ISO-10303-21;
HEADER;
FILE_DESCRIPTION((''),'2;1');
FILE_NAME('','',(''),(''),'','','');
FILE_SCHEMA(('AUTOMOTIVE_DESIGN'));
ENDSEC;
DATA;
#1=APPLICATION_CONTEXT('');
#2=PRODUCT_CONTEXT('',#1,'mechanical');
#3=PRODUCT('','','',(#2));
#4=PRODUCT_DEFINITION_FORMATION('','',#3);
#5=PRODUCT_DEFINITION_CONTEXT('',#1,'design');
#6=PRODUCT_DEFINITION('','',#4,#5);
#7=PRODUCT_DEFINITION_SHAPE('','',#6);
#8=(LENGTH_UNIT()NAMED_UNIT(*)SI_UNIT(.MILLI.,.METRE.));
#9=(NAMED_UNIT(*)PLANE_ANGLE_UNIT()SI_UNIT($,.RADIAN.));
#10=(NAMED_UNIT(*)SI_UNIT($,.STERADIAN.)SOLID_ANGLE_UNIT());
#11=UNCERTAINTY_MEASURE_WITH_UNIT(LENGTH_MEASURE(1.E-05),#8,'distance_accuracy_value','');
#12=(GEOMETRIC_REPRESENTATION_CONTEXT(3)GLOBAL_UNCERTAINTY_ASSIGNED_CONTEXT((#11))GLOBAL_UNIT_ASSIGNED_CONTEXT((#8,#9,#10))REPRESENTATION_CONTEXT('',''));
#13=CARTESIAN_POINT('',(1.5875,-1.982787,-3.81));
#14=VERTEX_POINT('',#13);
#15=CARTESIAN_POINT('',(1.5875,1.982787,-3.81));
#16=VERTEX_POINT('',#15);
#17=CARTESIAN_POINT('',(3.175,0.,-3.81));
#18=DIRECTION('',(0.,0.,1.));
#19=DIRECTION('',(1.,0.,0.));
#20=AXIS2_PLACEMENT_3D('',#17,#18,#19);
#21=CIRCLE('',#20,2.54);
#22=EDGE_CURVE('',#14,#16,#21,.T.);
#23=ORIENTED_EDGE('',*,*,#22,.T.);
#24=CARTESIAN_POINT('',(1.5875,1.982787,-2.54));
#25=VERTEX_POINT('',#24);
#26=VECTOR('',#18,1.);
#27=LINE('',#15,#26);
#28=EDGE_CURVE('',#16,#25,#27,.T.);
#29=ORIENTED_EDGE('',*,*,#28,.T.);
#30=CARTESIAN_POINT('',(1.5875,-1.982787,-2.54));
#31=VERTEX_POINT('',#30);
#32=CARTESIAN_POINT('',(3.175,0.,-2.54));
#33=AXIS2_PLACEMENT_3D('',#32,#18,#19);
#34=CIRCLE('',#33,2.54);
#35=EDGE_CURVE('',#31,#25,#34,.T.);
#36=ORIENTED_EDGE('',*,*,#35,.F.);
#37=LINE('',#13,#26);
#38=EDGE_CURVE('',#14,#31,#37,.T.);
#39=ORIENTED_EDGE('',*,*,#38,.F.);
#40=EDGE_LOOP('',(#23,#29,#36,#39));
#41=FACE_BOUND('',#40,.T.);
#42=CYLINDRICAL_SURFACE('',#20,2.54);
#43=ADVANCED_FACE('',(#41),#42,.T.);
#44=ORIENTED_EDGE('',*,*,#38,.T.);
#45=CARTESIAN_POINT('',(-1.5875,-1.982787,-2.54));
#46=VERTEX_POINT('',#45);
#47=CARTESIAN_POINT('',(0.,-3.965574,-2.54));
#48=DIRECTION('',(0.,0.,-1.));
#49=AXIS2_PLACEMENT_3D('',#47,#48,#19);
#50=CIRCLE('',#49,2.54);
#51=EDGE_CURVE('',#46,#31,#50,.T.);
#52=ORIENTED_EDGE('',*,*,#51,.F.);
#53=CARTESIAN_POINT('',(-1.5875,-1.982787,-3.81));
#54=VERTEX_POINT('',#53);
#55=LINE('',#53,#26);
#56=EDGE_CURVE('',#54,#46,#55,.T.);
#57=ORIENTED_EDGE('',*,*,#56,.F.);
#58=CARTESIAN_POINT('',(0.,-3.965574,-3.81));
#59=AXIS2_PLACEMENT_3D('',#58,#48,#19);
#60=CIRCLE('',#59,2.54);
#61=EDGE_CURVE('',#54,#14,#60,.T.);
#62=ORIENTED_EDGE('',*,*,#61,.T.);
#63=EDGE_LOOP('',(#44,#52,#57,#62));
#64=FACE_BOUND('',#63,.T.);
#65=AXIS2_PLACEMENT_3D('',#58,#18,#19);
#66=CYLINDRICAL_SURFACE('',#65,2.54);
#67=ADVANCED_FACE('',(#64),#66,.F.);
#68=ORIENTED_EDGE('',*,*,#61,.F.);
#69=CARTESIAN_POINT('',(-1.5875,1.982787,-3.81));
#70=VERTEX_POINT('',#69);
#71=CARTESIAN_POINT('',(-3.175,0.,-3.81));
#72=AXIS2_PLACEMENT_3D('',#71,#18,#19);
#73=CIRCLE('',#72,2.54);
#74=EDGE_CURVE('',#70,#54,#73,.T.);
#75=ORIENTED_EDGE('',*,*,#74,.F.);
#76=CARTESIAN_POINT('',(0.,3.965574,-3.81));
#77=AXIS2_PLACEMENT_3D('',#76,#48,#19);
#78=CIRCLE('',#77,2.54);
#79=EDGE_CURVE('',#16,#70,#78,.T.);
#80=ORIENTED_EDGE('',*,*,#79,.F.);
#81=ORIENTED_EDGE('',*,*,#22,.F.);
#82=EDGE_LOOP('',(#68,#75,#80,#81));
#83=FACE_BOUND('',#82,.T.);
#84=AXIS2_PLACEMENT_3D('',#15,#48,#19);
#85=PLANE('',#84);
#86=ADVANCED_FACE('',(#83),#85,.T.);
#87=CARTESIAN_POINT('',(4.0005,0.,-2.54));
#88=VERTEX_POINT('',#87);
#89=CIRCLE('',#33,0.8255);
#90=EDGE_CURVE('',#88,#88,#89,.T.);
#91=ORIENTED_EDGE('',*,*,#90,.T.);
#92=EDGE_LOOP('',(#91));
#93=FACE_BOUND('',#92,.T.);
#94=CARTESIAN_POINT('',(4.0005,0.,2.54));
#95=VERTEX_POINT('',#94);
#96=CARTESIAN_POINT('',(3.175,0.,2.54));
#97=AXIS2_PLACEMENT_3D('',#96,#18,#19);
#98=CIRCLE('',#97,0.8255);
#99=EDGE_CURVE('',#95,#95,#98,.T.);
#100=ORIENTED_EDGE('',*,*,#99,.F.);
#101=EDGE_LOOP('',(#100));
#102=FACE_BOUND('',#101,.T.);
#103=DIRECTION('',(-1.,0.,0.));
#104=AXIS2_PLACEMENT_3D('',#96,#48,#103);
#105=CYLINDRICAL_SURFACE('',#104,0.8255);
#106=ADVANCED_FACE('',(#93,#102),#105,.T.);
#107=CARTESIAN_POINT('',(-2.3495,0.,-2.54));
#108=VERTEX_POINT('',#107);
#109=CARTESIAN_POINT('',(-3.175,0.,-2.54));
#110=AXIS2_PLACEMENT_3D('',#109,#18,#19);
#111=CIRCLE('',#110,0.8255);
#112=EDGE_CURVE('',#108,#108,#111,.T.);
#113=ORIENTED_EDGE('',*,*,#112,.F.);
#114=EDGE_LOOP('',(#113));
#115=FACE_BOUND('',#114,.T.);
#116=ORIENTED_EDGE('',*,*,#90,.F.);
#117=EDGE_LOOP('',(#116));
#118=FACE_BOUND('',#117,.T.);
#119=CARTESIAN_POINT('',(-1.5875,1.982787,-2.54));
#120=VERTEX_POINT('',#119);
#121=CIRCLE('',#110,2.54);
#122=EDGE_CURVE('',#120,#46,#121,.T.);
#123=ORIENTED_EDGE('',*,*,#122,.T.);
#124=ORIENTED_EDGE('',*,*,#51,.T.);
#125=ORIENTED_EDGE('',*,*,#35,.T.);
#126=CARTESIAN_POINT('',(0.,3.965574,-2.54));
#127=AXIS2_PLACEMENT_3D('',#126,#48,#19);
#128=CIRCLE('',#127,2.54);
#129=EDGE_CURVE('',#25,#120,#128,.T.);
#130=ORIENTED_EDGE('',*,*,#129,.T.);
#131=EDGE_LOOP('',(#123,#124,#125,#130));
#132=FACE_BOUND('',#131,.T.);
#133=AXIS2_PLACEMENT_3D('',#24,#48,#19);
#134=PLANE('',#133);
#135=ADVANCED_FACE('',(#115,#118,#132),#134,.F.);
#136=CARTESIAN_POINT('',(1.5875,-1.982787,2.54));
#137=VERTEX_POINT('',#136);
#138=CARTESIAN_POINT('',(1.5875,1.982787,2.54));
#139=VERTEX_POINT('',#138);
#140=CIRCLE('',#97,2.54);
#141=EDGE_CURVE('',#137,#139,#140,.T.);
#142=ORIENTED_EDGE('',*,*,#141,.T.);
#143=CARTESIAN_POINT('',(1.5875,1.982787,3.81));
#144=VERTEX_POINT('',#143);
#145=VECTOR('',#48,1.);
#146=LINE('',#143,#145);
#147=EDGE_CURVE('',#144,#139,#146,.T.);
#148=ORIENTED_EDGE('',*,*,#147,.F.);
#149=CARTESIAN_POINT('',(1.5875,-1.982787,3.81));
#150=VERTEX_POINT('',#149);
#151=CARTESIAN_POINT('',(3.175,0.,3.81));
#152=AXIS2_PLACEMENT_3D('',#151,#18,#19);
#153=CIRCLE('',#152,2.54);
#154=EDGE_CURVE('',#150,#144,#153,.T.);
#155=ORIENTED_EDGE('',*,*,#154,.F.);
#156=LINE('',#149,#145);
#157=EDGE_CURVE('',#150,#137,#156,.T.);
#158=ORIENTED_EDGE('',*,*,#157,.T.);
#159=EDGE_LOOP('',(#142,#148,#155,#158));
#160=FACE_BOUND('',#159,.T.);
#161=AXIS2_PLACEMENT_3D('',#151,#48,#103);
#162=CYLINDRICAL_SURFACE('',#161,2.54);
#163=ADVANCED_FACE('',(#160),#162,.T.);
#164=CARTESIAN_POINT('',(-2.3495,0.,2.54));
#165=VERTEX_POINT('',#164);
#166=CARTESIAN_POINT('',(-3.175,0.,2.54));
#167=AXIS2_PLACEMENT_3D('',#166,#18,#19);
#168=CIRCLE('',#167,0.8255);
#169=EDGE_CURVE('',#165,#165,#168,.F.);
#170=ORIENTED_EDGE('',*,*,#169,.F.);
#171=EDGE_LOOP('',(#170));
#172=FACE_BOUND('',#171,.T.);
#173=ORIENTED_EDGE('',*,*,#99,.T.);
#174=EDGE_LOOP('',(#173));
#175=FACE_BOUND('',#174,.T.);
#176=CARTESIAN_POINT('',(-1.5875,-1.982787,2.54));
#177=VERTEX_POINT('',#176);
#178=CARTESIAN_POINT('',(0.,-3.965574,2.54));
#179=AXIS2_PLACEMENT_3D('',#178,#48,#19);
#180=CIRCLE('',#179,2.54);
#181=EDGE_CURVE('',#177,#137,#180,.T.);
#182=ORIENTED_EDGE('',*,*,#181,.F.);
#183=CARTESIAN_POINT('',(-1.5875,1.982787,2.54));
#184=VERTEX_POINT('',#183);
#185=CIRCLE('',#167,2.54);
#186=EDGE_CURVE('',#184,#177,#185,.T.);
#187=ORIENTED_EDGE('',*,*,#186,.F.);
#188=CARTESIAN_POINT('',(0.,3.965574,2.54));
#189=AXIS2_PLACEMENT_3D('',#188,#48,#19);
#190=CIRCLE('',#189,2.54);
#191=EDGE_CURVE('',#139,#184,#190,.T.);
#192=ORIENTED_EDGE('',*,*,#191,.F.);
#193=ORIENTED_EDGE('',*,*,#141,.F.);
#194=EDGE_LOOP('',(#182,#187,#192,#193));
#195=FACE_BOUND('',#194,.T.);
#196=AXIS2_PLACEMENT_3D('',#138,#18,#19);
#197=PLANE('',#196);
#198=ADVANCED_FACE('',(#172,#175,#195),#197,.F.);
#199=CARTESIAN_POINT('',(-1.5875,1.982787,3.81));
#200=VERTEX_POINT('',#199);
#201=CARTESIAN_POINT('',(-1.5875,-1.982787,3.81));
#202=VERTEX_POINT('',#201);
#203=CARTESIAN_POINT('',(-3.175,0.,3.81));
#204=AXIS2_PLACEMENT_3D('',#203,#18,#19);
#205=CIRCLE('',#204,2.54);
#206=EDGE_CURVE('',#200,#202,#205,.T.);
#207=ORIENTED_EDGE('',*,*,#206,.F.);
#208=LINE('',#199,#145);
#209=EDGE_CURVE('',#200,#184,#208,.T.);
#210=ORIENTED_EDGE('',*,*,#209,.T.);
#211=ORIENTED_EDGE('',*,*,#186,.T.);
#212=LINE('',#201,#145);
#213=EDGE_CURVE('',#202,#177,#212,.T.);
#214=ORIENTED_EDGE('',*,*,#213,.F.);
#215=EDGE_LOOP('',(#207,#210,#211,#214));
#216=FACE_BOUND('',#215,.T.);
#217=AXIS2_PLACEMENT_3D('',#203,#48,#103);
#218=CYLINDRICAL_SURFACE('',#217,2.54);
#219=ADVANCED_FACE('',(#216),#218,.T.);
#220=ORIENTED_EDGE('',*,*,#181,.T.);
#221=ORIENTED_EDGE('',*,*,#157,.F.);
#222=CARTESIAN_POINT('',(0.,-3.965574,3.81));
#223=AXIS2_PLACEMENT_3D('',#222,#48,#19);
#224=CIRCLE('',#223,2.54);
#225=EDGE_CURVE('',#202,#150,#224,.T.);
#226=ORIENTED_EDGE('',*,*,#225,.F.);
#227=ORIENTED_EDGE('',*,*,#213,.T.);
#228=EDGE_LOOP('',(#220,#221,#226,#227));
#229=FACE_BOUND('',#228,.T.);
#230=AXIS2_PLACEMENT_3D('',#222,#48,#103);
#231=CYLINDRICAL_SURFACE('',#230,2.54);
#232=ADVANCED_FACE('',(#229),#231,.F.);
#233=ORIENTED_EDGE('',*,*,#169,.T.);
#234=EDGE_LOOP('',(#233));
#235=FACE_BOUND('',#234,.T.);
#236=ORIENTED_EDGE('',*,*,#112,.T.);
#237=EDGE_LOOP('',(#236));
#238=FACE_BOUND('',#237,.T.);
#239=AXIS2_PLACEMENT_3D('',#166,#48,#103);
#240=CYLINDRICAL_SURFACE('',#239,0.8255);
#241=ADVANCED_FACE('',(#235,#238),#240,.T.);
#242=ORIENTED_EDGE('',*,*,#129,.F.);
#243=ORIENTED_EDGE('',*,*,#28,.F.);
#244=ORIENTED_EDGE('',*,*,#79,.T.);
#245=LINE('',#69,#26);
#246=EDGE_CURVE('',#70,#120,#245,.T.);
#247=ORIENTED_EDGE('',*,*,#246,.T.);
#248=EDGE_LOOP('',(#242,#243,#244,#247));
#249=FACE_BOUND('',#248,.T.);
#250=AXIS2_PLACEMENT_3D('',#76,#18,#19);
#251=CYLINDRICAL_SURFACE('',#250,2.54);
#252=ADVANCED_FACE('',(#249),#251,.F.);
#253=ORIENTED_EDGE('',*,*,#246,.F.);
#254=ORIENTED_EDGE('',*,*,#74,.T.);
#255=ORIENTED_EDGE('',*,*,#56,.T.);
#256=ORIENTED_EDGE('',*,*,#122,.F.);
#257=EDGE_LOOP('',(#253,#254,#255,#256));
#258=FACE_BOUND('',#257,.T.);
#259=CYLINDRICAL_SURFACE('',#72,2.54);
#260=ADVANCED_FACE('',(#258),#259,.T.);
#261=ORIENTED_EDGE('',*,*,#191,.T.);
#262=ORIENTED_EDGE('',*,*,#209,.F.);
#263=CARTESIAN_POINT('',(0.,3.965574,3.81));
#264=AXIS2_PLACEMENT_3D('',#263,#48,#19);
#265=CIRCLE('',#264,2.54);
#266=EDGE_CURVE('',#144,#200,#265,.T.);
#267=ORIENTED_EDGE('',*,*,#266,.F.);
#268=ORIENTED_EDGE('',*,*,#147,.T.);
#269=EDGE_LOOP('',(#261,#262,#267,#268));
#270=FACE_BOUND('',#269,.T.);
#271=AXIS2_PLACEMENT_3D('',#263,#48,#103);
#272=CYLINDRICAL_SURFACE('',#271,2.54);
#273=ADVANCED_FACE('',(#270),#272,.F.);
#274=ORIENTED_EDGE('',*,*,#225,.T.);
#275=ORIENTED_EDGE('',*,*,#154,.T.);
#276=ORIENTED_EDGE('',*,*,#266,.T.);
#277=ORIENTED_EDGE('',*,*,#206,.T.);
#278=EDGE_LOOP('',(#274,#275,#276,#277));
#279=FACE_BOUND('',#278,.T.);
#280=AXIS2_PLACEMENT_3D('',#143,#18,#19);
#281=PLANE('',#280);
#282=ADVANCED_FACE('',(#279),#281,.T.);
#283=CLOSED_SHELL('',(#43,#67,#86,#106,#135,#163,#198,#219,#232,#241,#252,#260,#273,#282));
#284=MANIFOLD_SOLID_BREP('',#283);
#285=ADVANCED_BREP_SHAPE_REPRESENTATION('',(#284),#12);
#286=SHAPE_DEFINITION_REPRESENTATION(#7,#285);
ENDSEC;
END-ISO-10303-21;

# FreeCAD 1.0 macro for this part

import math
import FreeCAD as App
import Part
import Sketcher
Q = App.Units.Quantity

doc = App.newDocument("Part")
params = doc.addObject("Spreadsheet::Sheet", "Params")
for row, (alias, value) in enumerate([
    ("sketch1_diameter", "0.065 in"),
    ("pad1_length", "0.2 in"),
    ("sketch2_diameter", "0.065 in"),
    ("pad2_length", "0.2 in"),
    ("sketch3_radius", "0.1 in"),
    ("pad3_length", "0.05 in"),
], start=1):
    params.set(f"A{row}", alias)
    params.set(f"B{row}", "=" + value)
    params.setAlias(f"B{row}", alias)

body = doc.addObject("PartDesign::Body", "Body")

# Sketch on XY plane
sketch1 = doc.addObject("Sketcher::SketchObject", "Sketch")
body.addObject(sketch1)
sketch1.AttachmentSupport = (doc.XY_Plane, [""])
sketch1.MapMode = "FlatFace"
sketch1.addGeometry(Part.Circle(App.Vector(3.2, 0, 0), App.Vector(0, 0, 1), 0.8), False)
sketch1.addConstraint([
    Sketcher.Constraint("PointOnObject", 0, 3, -1),
    Sketcher.Constraint("Diameter", 0, Q("0.065 in")),
    Sketcher.Constraint("DistanceX", -1, 1, 0, 3, Q("0.125 in")),
])
sketch1.setExpression("Constraints[1]", "Params.sketch1_diameter")
pad1 = doc.addObject("PartDesign::Pad", "Pad")
body.addObject(pad1)
pad1.Profile = sketch1
pad1.setExpression("Length", "Params.pad1_length")
pad1.Midplane = True
body2 = doc.addObject("PartDesign::Body", "Body001")

# Sketch on XY plane
sketch2 = doc.addObject("Sketcher::SketchObject", "Sketch001")
body2.addObject(sketch2)
sketch2.AttachmentSupport = (doc.getObject("XY_Plane001"), [""])
sketch2.MapMode = "FlatFace"
sketch2.addGeometry(Part.Circle(App.Vector(-3.2, 0, 0), App.Vector(0, 0, 1), 0.8), False)
sketch2.addConstraint([
    Sketcher.Constraint("PointOnObject", 0, 3, -1),
    Sketcher.Constraint("Diameter", 0, Q("0.065 in")),
    Sketcher.Constraint("DistanceX", 0, 3, -1, 1, Q("0.125 in")),
])
sketch2.setExpression("Constraints[1]", "Params.sketch2_diameter")
pad2 = doc.addObject("PartDesign::Pad", "Pad001")
body2.addObject(pad2)
pad2.Profile = sketch2
pad2.setExpression("Length", "Params.pad2_length")
pad2.Midplane = True
body.AllowCompound = True
doc.recompute()

boolean = doc.addObject("PartDesign::Boolean", "Boolean")
body.addObject(boolean)
boolean.Type = "Fuse"
boolean.addObjects([body2])

# Sketch on XY plane
sketch3 = doc.addObject("Sketcher::SketchObject", "Sketch002")
body.addObject(sketch3)
sketch3.AttachmentSupport = (doc.XY_Plane, [""])
sketch3.MapMode = "FlatFace"
sketch3.AttachmentOffset = App.Placement(App.Vector(0, 0, 0.1 * 25.4), App.Rotation())
sketch3.addGeometry([
    Part.ArcOfCircle(Part.Circle(App.Vector(3.2, 0, 0), App.Vector(0, 0, 1), 2.5), math.radians(-129), math.radians(129)),
    Part.ArcOfCircle(Part.Circle(App.Vector(0, 4, 0), App.Vector(0, 0, 1), 2.5), math.radians(-129), math.radians(-51)),
    Part.ArcOfCircle(Part.Circle(App.Vector(-3.2, 0, 0), App.Vector(0, 0, 1), 2.5), math.radians(51), math.radians(309)),
    Part.ArcOfCircle(Part.Circle(App.Vector(0, -4, 0), App.Vector(0, 0, 1), 2.5), math.radians(51), math.radians(129)),
], False)
sketch3.addConstraint([
    Sketcher.Constraint("Tangent", 0, 2, 1, 2),
    Sketcher.Constraint("Tangent", 1, 1, 2, 1),
    Sketcher.Constraint("Tangent", 2, 2, 3, 2),
    Sketcher.Constraint("Tangent", 3, 1, 0, 1),
    Sketcher.Constraint("Equal", 0, 1),
    Sketcher.Constraint("Equal", 1, 2),
    Sketcher.Constraint("Equal", 2, 3),
    Sketcher.Constraint("Symmetric", 0, 3, 2, 3, -1, 1),
    Sketcher.Constraint("PointOnObject", 0, 3, -1),
    Sketcher.Constraint("Radius", 0, Q("0.1 in")),
    Sketcher.Constraint("DistanceX", 2, 3, 0, 3, Q("0.25 in")),
])
sketch3.setExpression("Constraints[9]", "Params.sketch3_radius")
pad3 = doc.addObject("PartDesign::Pad", "Pad002")
body.addObject(pad3)
pad3.Profile = sketch3
pad3.setExpression("Length", "Params.pad3_length")
doc.recompute()

mirrored = doc.addObject("PartDesign::Mirrored", "Mirrored")
body.addObject(mirrored)
mirrored.Originals = [pad3]
mirrored.MirrorPlane = (doc.XY_Plane, [""])
body.Tip = mirrored

doc.recompute()
